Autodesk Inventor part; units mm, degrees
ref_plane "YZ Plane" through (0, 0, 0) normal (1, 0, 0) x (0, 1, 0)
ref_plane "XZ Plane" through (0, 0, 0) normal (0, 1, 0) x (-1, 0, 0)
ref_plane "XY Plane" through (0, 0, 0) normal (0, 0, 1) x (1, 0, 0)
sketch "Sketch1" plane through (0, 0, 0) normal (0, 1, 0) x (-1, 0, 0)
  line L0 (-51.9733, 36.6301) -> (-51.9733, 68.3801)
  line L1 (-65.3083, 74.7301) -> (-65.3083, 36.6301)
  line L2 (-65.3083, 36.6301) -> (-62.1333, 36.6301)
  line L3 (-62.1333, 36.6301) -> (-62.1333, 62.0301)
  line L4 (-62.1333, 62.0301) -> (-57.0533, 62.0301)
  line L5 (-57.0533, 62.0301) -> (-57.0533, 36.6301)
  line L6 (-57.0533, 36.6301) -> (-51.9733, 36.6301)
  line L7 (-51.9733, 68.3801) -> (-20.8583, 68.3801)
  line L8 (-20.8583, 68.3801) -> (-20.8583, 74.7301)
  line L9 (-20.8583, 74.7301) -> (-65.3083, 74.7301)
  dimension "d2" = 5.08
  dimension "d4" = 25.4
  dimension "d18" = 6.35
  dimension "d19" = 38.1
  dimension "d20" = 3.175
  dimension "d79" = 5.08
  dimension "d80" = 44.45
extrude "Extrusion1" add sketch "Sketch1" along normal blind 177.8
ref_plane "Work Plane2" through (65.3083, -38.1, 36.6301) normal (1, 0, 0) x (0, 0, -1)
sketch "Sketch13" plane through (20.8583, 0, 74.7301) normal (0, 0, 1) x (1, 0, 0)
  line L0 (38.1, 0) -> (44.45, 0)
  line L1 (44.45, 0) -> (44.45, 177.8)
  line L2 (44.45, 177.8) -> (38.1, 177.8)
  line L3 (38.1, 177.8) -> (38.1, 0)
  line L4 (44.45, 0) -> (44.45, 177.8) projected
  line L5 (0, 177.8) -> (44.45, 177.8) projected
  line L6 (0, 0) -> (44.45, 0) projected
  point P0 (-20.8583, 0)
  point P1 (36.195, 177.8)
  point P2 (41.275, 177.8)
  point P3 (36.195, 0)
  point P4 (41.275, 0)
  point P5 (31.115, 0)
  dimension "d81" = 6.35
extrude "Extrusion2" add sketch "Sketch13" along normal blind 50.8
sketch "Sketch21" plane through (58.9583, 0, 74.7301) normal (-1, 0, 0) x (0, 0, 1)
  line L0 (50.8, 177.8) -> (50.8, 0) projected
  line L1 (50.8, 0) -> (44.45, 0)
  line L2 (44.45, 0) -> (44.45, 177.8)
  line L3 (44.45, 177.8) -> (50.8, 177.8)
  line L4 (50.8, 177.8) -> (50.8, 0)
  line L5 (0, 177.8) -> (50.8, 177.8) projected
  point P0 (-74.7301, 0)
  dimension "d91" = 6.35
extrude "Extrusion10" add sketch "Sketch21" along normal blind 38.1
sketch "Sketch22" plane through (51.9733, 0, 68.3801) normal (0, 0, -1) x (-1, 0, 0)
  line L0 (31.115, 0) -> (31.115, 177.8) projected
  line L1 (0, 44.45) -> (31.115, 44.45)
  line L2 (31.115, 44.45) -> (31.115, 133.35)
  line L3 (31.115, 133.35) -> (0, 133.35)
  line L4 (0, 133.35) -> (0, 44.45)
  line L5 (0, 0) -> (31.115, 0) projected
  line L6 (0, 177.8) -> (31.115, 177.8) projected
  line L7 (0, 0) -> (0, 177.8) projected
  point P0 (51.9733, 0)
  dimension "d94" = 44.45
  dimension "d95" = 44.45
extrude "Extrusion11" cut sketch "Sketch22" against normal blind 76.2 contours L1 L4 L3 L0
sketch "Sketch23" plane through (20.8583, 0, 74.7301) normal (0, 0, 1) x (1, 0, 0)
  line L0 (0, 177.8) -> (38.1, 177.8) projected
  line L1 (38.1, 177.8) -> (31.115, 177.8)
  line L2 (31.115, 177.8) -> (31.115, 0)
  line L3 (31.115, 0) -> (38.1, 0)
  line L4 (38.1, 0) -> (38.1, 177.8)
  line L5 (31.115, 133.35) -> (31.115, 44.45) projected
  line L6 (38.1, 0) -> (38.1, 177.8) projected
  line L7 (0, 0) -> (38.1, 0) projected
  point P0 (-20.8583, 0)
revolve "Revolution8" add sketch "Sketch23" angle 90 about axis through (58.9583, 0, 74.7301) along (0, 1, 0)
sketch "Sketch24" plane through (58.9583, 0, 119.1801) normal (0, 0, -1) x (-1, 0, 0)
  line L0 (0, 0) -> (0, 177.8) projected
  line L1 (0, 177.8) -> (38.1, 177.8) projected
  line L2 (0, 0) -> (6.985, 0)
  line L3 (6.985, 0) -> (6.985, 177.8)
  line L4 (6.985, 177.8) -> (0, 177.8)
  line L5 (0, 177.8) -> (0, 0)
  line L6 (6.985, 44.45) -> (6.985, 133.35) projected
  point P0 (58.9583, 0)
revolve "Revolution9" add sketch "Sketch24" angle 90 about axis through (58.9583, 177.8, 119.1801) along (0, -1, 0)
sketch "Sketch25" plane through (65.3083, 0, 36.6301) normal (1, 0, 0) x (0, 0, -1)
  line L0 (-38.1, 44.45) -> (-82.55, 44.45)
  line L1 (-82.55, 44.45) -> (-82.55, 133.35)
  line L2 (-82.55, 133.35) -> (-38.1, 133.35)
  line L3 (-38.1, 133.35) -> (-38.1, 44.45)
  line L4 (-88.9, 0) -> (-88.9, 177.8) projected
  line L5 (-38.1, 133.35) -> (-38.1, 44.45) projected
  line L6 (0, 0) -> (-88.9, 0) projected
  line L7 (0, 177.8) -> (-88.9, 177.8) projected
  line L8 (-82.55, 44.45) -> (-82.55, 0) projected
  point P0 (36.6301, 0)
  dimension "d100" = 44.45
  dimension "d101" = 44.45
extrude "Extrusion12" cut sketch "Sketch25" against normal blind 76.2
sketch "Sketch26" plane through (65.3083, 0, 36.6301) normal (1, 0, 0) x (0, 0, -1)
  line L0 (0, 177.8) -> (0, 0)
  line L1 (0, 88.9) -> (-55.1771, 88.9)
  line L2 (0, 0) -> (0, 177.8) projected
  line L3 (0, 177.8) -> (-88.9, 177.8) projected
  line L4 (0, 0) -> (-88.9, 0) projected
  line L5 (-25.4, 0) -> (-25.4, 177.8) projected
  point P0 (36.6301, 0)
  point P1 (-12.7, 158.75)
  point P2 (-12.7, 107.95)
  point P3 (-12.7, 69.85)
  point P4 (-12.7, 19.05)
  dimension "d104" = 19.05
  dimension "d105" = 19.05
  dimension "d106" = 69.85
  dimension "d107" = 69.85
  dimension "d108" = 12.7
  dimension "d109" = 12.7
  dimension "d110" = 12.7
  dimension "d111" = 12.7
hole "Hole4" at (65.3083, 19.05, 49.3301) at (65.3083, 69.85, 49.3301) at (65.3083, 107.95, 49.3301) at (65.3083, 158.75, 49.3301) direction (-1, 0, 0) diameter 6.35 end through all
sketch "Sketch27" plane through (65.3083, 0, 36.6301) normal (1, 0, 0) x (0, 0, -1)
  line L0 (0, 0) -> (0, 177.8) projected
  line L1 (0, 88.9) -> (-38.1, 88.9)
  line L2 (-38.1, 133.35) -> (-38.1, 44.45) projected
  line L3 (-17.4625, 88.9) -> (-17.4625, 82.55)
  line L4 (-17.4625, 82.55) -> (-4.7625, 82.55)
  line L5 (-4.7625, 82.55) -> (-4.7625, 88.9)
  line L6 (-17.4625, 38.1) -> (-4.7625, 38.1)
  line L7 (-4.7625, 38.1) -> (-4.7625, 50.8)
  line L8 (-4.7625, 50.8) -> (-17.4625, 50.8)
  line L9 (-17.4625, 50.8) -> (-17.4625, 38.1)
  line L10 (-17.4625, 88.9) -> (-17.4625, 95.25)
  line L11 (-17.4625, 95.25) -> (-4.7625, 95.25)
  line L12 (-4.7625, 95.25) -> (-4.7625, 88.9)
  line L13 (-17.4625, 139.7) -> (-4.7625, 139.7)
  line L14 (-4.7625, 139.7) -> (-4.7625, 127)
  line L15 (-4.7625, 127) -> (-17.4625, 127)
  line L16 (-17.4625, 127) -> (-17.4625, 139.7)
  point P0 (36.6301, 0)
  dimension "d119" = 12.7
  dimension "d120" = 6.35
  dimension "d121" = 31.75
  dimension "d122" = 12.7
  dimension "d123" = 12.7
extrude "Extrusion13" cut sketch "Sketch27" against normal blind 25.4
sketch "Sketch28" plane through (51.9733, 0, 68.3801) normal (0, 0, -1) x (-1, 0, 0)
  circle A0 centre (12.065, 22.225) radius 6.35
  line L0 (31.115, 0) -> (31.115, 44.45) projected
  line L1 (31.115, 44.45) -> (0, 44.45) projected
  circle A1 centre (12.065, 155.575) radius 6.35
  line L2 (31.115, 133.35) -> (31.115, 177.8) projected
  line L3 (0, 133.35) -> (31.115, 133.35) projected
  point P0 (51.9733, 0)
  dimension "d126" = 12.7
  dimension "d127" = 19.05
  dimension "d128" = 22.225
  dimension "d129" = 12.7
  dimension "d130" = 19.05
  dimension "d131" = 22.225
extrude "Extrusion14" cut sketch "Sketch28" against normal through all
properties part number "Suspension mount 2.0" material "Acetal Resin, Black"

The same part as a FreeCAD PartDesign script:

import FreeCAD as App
import Part
import Sketcher

V = App.Vector
Q = App.Units.Quantity

doc = App.newDocument("Part")
params = doc.addObject("Spreadsheet::Sheet", "Params")
for row, (alias, value) in enumerate([
    ("sketch1_height", "1 in"),
    ("sketch1_width", "0.2 in"),
    ("sketch1_height2", "1.5 in"),
    ("sketch1_width2", "1.75 in"),
    ("sketch1_height3", "0.25 in"),
    ("pad1_length", "7 in"),
    ("sketch2_width", "0.25 in"),
    ("sketch2_height", "7 in"),
    ("pad2_length", "2 in"),
    ("sketch3_height", "0.25 in"),
    ("sketch3_width", "7 in"),
    ("pad3_length", "1.5 in"),
    ("sketch4_height", "3.5 in"),
    ("sketch4_width", "1.225 in"),
    ("pocket1_length", "3 in"),
    ("sketch5_height", "7 in"),
    ("sketch5_width", "0.275 in"),
    ("revolution_angle", "90 deg"),
    ("sketch6_height", "7 in"),
    ("sketch6_width", "0.275 in"),
    ("revolution2_angle", "90 deg"),
    ("sketch7_height", "1.75 in"),
    ("sketch7_width", "3.5 in"),
    ("pocket2_length", "3 in"),
    ("sketch8_diameter", "0.25 in"),
    ("hole_diameter", "0.25 in"),
    ("sketch9_width", "0.5 in"),
    ("pocket3_length", "1 in"),
    ("sketch10_diameter", "0.5 in"),
], start=1):
    params.set(f"A{row}", alias)
    params.set(f"B{row}", "=" + value)
    params.setAlias(f"B{row}", alias)

body = doc.addObject("PartDesign::Body", "Body")

# Sketch on XZ plane
sketch1 = doc.addObject("Sketcher::SketchObject", "Sketch")
body.addObject(sketch1)
sketch1.AttachmentSupport = (doc.XZ_Plane, [""])
sketch1.MapMode = "FlatFace"
sketch1.addGeometry(Part.LineSegment(V(57.0533, 36.6301, 0), V(51.9733, 36.6301, 0)), False)
sketch1.addGeometry(Part.LineSegment(V(51.9733, 36.6301, 0), V(51.9733, 68.3801, 0)), False)
sketch1.addGeometry(Part.LineSegment(V(51.9733, 68.3801, 0), V(20.8583, 68.3801, 0)), False)
sketch1.addGeometry(Part.LineSegment(V(20.8583, 68.3801, 0), V(20.8583, 74.7301, 0)), False)
sketch1.addGeometry(Part.LineSegment(V(20.8583, 74.7301, 0), V(65.3083, 74.7301, 0)), False)
sketch1.addGeometry(Part.LineSegment(V(65.3083, 74.7301, 0), V(65.3083, 36.6301, 0)), False)
sketch1.addGeometry(Part.LineSegment(V(65.3083, 36.6301, 0), V(62.1333, 36.6301, 0)), False)
sketch1.addGeometry(Part.LineSegment(V(62.1333, 36.6301, 0), V(62.1333, 62.0301, 0)), False)
sketch1.addGeometry(Part.LineSegment(V(62.1333, 62.0301, 0), V(57.0533, 62.0301, 0)), False)
sketch1.addGeometry(Part.LineSegment(V(57.0533, 62.0301, 0), V(57.0533, 36.6301, 0)), False)
sketch1.addConstraint(Sketcher.Constraint("Coincident", 0, 2, 1, 1))
sketch1.addConstraint(Sketcher.Constraint("Coincident", 1, 2, 2, 1))
sketch1.addConstraint(Sketcher.Constraint("Coincident", 2, 2, 3, 1))
sketch1.addConstraint(Sketcher.Constraint("Coincident", 3, 2, 4, 1))
sketch1.addConstraint(Sketcher.Constraint("Coincident", 4, 2, 5, 1))
sketch1.addConstraint(Sketcher.Constraint("Coincident", 5, 2, 6, 1))
sketch1.addConstraint(Sketcher.Constraint("Coincident", 6, 2, 7, 1))
sketch1.addConstraint(Sketcher.Constraint("Coincident", 7, 2, 8, 1))
sketch1.addConstraint(Sketcher.Constraint("Coincident", 8, 2, 9, 1))
sketch1.addConstraint(Sketcher.Constraint("Coincident", 9, 2, 0, 1))
sketch1.addConstraint(Sketcher.Constraint("Horizontal", 0))
sketch1.addConstraint(Sketcher.Constraint("Vertical", 1))
sketch1.addConstraint(Sketcher.Constraint("Horizontal", 2))
sketch1.addConstraint(Sketcher.Constraint("Vertical", 3))
sketch1.addConstraint(Sketcher.Constraint("Horizontal", 4))
sketch1.addConstraint(Sketcher.Constraint("Vertical", 5))
sketch1.addConstraint(Sketcher.Constraint("Horizontal", 6))
sketch1.addConstraint(Sketcher.Constraint("Vertical", 7))
sketch1.addConstraint(Sketcher.Constraint("Horizontal", 8))
sketch1.addConstraint(Sketcher.Constraint("Vertical", 9))
sketch1.addConstraint(Sketcher.Constraint("Horizontal", 0, 2, 5, 2))
sketch1.addConstraint(Sketcher.Constraint("Equal", 0, 8))
sketch1.addConstraint(Sketcher.Constraint("DistanceY", 7, 1, 7, 2, Q("1 in")))
sketch1.addConstraint(Sketcher.Constraint("DistanceX", 0, 2, 0, 1, Q("0.2 in")))
sketch1.addConstraint(Sketcher.Constraint("DistanceY", 5, 2, 5, 1, Q("1.5 in")))
sketch1.addConstraint(Sketcher.Constraint("DistanceX", 4, 1, 4, 2, Q("1.75 in")))
sketch1.addConstraint(Sketcher.Constraint("DistanceY", 3, 1, 3, 2, Q("0.25 in")))
sketch1.addConstraint(Sketcher.Constraint("DistanceX", 6, 2, 6, 1, Q("0.125 in")))
sketch1.addConstraint(Sketcher.Constraint("DistanceX", -1, 1, 0, 2, Q("2.0462 in")))
sketch1.addConstraint(Sketcher.Constraint("DistanceY", -1, 1, 0, 2, Q("36.63 mm")))
sketch1.setExpression("Constraints[22]", "Params.sketch1_height")
sketch1.setExpression("Constraints[23]", "Params.sketch1_width")
sketch1.setExpression("Constraints[24]", "Params.sketch1_height2")
sketch1.setExpression("Constraints[25]", "Params.sketch1_width2")
sketch1.setExpression("Constraints[26]", "Params.sketch1_height3")
pad1 = doc.addObject("PartDesign::Pad", "Pad")
body.addObject(pad1)
pad1.Profile = sketch1
pad1.setExpression("Length", "Params.pad1_length")
pad1.Reversed = True

# Sketch on XY plane
sketch2 = doc.addObject("Sketcher::SketchObject", "Sketch001")
body.addObject(sketch2)
sketch2.AttachmentSupport = (doc.XY_Plane, [""])
sketch2.MapMode = "FlatFace"
sketch2.AttachmentOffset = App.Placement(V(0, 0, 74.7301), App.Rotation())
sketch2.addGeometry(Part.LineSegment(V(58.9583, 177.8, 0), V(58.9583, 0, 0)), False)
sketch2.addGeometry(Part.LineSegment(V(58.9583, 0, 0), V(65.3083, 0, 0)), False)
sketch2.addGeometry(Part.LineSegment(V(65.3083, 0, 0), V(65.3083, 177.8, 0)), False)
sketch2.addGeometry(Part.LineSegment(V(65.3083, 177.8, 0), V(58.9583, 177.8, 0)), False)
sketch2.addConstraint(Sketcher.Constraint("Coincident", 0, 2, 1, 1))
sketch2.addConstraint(Sketcher.Constraint("Coincident", 1, 2, 2, 1))
sketch2.addConstraint(Sketcher.Constraint("Coincident", 2, 2, 3, 1))
sketch2.addConstraint(Sketcher.Constraint("Coincident", 3, 2, 0, 1))
sketch2.addConstraint(Sketcher.Constraint("Vertical", 0))
sketch2.addConstraint(Sketcher.Constraint("Horizontal", 1))
sketch2.addConstraint(Sketcher.Constraint("Vertical", 2))
sketch2.addConstraint(Sketcher.Constraint("Horizontal", 3))
sketch2.addConstraint(Sketcher.Constraint("PointOnObject", 0, 2, -1))
sketch2.addConstraint(Sketcher.Constraint("DistanceX", 1, 1, 1, 2, Q("0.25 in")))
sketch2.addConstraint(Sketcher.Constraint("DistanceY", 0, 2, 0, 1, Q("7 in")))
sketch2.addConstraint(Sketcher.Constraint("DistanceX", -1, 1, 0, 2, Q("2.3212 in")))
sketch2.setExpression("Constraints[9]", "Params.sketch2_width")
sketch2.setExpression("Constraints[10]", "Params.sketch2_height")
pad2 = doc.addObject("PartDesign::Pad", "Pad001")
body.addObject(pad2)
pad2.Profile = sketch2
pad2.setExpression("Length", "Params.pad2_length")

# Sketch on YZ plane
sketch3 = doc.addObject("Sketcher::SketchObject", "Sketch002")
body.addObject(sketch3)
sketch3.AttachmentSupport = (doc.YZ_Plane, [""])
sketch3.MapMode = "FlatFace"
sketch3.AttachmentOffset = App.Placement(V(0, 0, 2.3211929 * 25.4), App.Rotation())
sketch3.addGeometry(Part.LineSegment(V(0, 125.5301, 0), V(177.8, 125.5301, 0)), False)
sketch3.addGeometry(Part.LineSegment(V(177.8, 125.5301, 0), V(177.8, 119.1801, 0)), False)
sketch3.addGeometry(Part.LineSegment(V(177.8, 119.1801, 0), V(0, 119.1801, 0)), False)
sketch3.addGeometry(Part.LineSegment(V(0, 119.1801, 0), V(0, 125.5301, 0)), False)
sketch3.addConstraint(Sketcher.Constraint("Coincident", 0, 2, 1, 1))
sketch3.addConstraint(Sketcher.Constraint("Coincident", 1, 2, 2, 1))
sketch3.addConstraint(Sketcher.Constraint("Coincident", 2, 2, 3, 1))
sketch3.addConstraint(Sketcher.Constraint("Coincident", 3, 2, 0, 1))
sketch3.addConstraint(Sketcher.Constraint("Horizontal", 0))
sketch3.addConstraint(Sketcher.Constraint("Vertical", 1))
sketch3.addConstraint(Sketcher.Constraint("Horizontal", 2))
sketch3.addConstraint(Sketcher.Constraint("Vertical", 3))
sketch3.addConstraint(Sketcher.Constraint("PointOnObject", 2, 2, -2))
sketch3.addConstraint(Sketcher.Constraint("DistanceY", 1, 2, 1, 1, Q("0.25 in")))
sketch3.addConstraint(Sketcher.Constraint("DistanceX", 0, 1, 0, 2, Q("7 in")))
sketch3.addConstraint(Sketcher.Constraint("DistanceY", -1, 1, 0, 2, Q("125.53 mm")))
sketch3.setExpression("Constraints[9]", "Params.sketch3_height")
sketch3.setExpression("Constraints[10]", "Params.sketch3_width")
pad3 = doc.addObject("PartDesign::Pad", "Pad002")
body.addObject(pad3)
pad3.Profile = sketch3
pad3.setExpression("Length", "Params.pad3_length")
pad3.Reversed = True

# Sketch on XY plane
sketch4 = doc.addObject("Sketcher::SketchObject", "Sketch003")
body.addObject(sketch4)
sketch4.AttachmentSupport = (doc.XY_Plane, [""])
sketch4.MapMode = "FlatFace"
sketch4.AttachmentOffset = App.Placement(V(0, 0, 68.3801), App.Rotation())
sketch4.addGeometry(Part.LineSegment(V(51.9733, 44.45, 0), V(20.8583, 44.45, 0)), False)
sketch4.addGeometry(Part.LineSegment(V(20.8583, 44.45, 0), V(20.8583, 133.35, 0)), False)
sketch4.addGeometry(Part.LineSegment(V(20.8583, 133.35, 0), V(51.9733, 133.35, 0)), False)
sketch4.addGeometry(Part.LineSegment(V(51.9733, 133.35, 0), V(51.9733, 44.45, 0)), False)
sketch4.addConstraint(Sketcher.Constraint("Coincident", 0, 2, 1, 1))
sketch4.addConstraint(Sketcher.Constraint("Coincident", 1, 2, 2, 1))
sketch4.addConstraint(Sketcher.Constraint("Coincident", 2, 2, 3, 1))
sketch4.addConstraint(Sketcher.Constraint("Coincident", 3, 2, 0, 1))
sketch4.addConstraint(Sketcher.Constraint("Horizontal", 0))
sketch4.addConstraint(Sketcher.Constraint("Vertical", 1))
sketch4.addConstraint(Sketcher.Constraint("Horizontal", 2))
sketch4.addConstraint(Sketcher.Constraint("Vertical", 3))
sketch4.addConstraint(Sketcher.Constraint("DistanceY", -1, 1, 0, 2, Q("1.75 in")))
sketch4.addConstraint(Sketcher.Constraint("DistanceY", 1, 1, 1, 2, Q("3.5 in")))
sketch4.addConstraint(Sketcher.Constraint("DistanceX", 0, 2, 0, 1, Q("1.225 in")))
sketch4.addConstraint(Sketcher.Constraint("DistanceX", -1, 1, 0, 2, Q("0.8212 in")))
sketch4.setExpression("Constraints[9]", "Params.sketch4_height")
sketch4.setExpression("Constraints[10]", "Params.sketch4_width")
pocket1 = doc.addObject("PartDesign::Pocket", "Pocket")
body.addObject(pocket1)
pocket1.Profile = sketch4
pocket1.setExpression("Length", "Params.pocket1_length")
pocket1.Reversed = True

# Sketch on XY plane
sketch5 = doc.addObject("Sketcher::SketchObject", "Sketch004")
body.addObject(sketch5)
sketch5.AttachmentSupport = (doc.XY_Plane, [""])
sketch5.MapMode = "FlatFace"
sketch5.AttachmentOffset = App.Placement(V(0, 0, 74.7301), App.Rotation())
sketch5.addGeometry(Part.LineSegment(V(58.9583, 177.8, 0), V(51.9733, 177.8, 0)), False)
sketch5.addGeometry(Part.LineSegment(V(51.9733, 177.8, 0), V(51.9733, 0, 0)), False)
sketch5.addGeometry(Part.LineSegment(V(51.9733, 0, 0), V(58.9583, 0, 0)), False)
sketch5.addGeometry(Part.LineSegment(V(58.9583, 0, 0), V(58.9583, 177.8, 0)), False)
sketch5.addGeometry(Part.LineSegment(V(58.9583, 0, 0), V(58.9583, 177.8, 0)), True)  # axis
sketch5.addConstraint(Sketcher.Constraint("Coincident", 0, 2, 1, 1))
sketch5.addConstraint(Sketcher.Constraint("Coincident", 1, 2, 2, 1))
sketch5.addConstraint(Sketcher.Constraint("Coincident", 2, 2, 3, 1))
sketch5.addConstraint(Sketcher.Constraint("Coincident", 3, 2, 0, 1))
sketch5.addConstraint(Sketcher.Constraint("Horizontal", 0))
sketch5.addConstraint(Sketcher.Constraint("Vertical", 1))
sketch5.addConstraint(Sketcher.Constraint("Horizontal", 2))
sketch5.addConstraint(Sketcher.Constraint("Vertical", 3))
sketch5.addConstraint(Sketcher.Constraint("Vertical", 4))
sketch5.addConstraint(Sketcher.Constraint("Coincident", 4, 1, 2, 2))
sketch5.addConstraint(Sketcher.Constraint("PointOnObject", 1, 2, -1))
sketch5.addConstraint(Sketcher.Constraint("Horizontal", 0, 2, 4, 2))
sketch5.addConstraint(Sketcher.Constraint("DistanceY", 1, 2, 1, 1, Q("7 in")))
sketch5.addConstraint(Sketcher.Constraint("DistanceX", 0, 2, 0, 1, Q("0.275 in")))
sketch5.addConstraint(Sketcher.Constraint("DistanceX", -1, 1, 0, 2, Q("2.0462 in")))
sketch5.setExpression("Constraints[12]", "Params.sketch5_height")
sketch5.setExpression("Constraints[13]", "Params.sketch5_width")
revolution = doc.addObject("PartDesign::Revolution", "Revolution")
body.addObject(revolution)
revolution.Profile = sketch5
revolution.ReferenceAxis = (sketch5, ["Axis0"])
revolution.setExpression("Angle", "Params.revolution_angle")

# Sketch on XY plane
sketch6 = doc.addObject("Sketcher::SketchObject", "Sketch005")
body.addObject(sketch6)
sketch6.AttachmentSupport = (doc.XY_Plane, [""])
sketch6.MapMode = "FlatFace"
sketch6.AttachmentOffset = App.Placement(V(0, 0, 119.1801), App.Rotation())
sketch6.addGeometry(Part.LineSegment(V(58.9583, 177.8, 0), V(58.9583, 0, 0)), False)
sketch6.addGeometry(Part.LineSegment(V(58.9583, 0, 0), V(51.9733, 0, 0)), False)
sketch6.addGeometry(Part.LineSegment(V(51.9733, 0, 0), V(51.9733, 177.8, 0)), False)
sketch6.addGeometry(Part.LineSegment(V(51.9733, 177.8, 0), V(58.9583, 177.8, 0)), False)
sketch6.addGeometry(Part.LineSegment(V(58.9583, 177.8, 0), V(58.9583, 0, 0)), True)  # axis
sketch6.addConstraint(Sketcher.Constraint("Coincident", 0, 2, 1, 1))
sketch6.addConstraint(Sketcher.Constraint("Coincident", 1, 2, 2, 1))
sketch6.addConstraint(Sketcher.Constraint("Coincident", 2, 2, 3, 1))
sketch6.addConstraint(Sketcher.Constraint("Coincident", 3, 2, 0, 1))
sketch6.addConstraint(Sketcher.Constraint("Vertical", 0))
sketch6.addConstraint(Sketcher.Constraint("Horizontal", 1))
sketch6.addConstraint(Sketcher.Constraint("Vertical", 2))
sketch6.addConstraint(Sketcher.Constraint("Horizontal", 3))
sketch6.addConstraint(Sketcher.Constraint("Vertical", 4))
sketch6.addConstraint(Sketcher.Constraint("Coincident", 4, 1, 3, 2))
sketch6.addConstraint(Sketcher.Constraint("PointOnObject", 0, 2, -1))
sketch6.addConstraint(Sketcher.Constraint("PointOnObject", 4, 2, -1))
sketch6.addConstraint(Sketcher.Constraint("DistanceY", 0, 2, 0, 1, Q("7 in")))
sketch6.addConstraint(Sketcher.Constraint("DistanceX", 1, 2, 1, 1, Q("0.275 in")))
sketch6.addConstraint(Sketcher.Constraint("DistanceX", -1, 1, 0, 2, Q("2.3212 in")))
sketch6.setExpression("Constraints[12]", "Params.sketch6_height")
sketch6.setExpression("Constraints[13]", "Params.sketch6_width")
revolution2 = doc.addObject("PartDesign::Revolution", "Revolution001")
body.addObject(revolution2)
revolution2.Profile = sketch6
revolution2.ReferenceAxis = (sketch6, ["Axis0"])
revolution2.setExpression("Angle", "Params.revolution2_angle")

# Sketch on YZ plane
sketch7 = doc.addObject("Sketcher::SketchObject", "Sketch006")
body.addObject(sketch7)
sketch7.AttachmentSupport = (doc.YZ_Plane, [""])
sketch7.MapMode = "FlatFace"
sketch7.AttachmentOffset = App.Placement(V(0, 0, 2.5711929 * 25.4), App.Rotation())
sketch7.addGeometry(Part.LineSegment(V(44.45, 119.1801, 0), V(44.45, 74.7301, 0)), False)
sketch7.addGeometry(Part.LineSegment(V(44.45, 74.7301, 0), V(133.35, 74.7301, 0)), False)
sketch7.addGeometry(Part.LineSegment(V(133.35, 74.7301, 0), V(133.35, 119.1801, 0)), False)
sketch7.addGeometry(Part.LineSegment(V(133.35, 119.1801, 0), V(44.45, 119.1801, 0)), False)
sketch7.addConstraint(Sketcher.Constraint("Coincident", 0, 2, 1, 1))
sketch7.addConstraint(Sketcher.Constraint("Coincident", 1, 2, 2, 1))
sketch7.addConstraint(Sketcher.Constraint("Coincident", 2, 2, 3, 1))
sketch7.addConstraint(Sketcher.Constraint("Coincident", 3, 2, 0, 1))
sketch7.addConstraint(Sketcher.Constraint("Vertical", 0))
sketch7.addConstraint(Sketcher.Constraint("Horizontal", 1))
sketch7.addConstraint(Sketcher.Constraint("Vertical", 2))
sketch7.addConstraint(Sketcher.Constraint("Horizontal", 3))
sketch7.addConstraint(Sketcher.Constraint("DistanceY", 0, 2, 0, 1, Q("1.75 in")))
sketch7.addConstraint(Sketcher.Constraint("DistanceX", -1, 1, 0, 2, Q("1.75 in")))
sketch7.addConstraint(Sketcher.Constraint("DistanceX", 1, 1, 1, 2, Q("3.5 in")))
sketch7.addConstraint(Sketcher.Constraint("DistanceY", -1, 1, 0, 2, Q("74.73 mm")))
sketch7.setExpression("Constraints[8]", "Params.sketch7_height")
sketch7.setExpression("Constraints[10]", "Params.sketch7_width")
pocket2 = doc.addObject("PartDesign::Pocket", "Pocket001")
body.addObject(pocket2)
pocket2.Profile = sketch7
pocket2.setExpression("Length", "Params.pocket2_length")

# Sketch on YZ plane
sketch8 = doc.addObject("Sketcher::SketchObject", "Sketch007")
body.addObject(sketch8)
sketch8.AttachmentSupport = (doc.YZ_Plane, [""])
sketch8.MapMode = "FlatFace"
sketch8.AttachmentOffset = App.Placement(V(0, 0, 2.5711929 * 25.4), App.Rotation())
sketch8.addGeometry(Part.Circle(V(19.05, 49.3301, 0), V(0, 0, 1), 3.175), False)
sketch8.addGeometry(Part.Circle(V(69.85, 49.3301, 0), V(0, 0, 1), 3.175), False)
sketch8.addGeometry(Part.Circle(V(107.95, 49.3301, 0), V(0, 0, 1), 3.175), False)
sketch8.addGeometry(Part.Circle(V(158.75, 49.3301, 0), V(0, 0, 1), 3.175), False)
sketch8.addConstraint(Sketcher.Constraint("Equal", 0, 1))
sketch8.addConstraint(Sketcher.Constraint("Equal", 1, 2))
sketch8.addConstraint(Sketcher.Constraint("Equal", 2, 3))
sketch8.addConstraint(Sketcher.Constraint("Horizontal", 0, 3, 1, 3))
sketch8.addConstraint(Sketcher.Constraint("Horizontal", 1, 3, 2, 3))
sketch8.addConstraint(Sketcher.Constraint("Horizontal", 2, 3, 3, 3))
sketch8.addConstraint(Sketcher.Constraint("Diameter", 0, Q("0.25 in")))
sketch8.addConstraint(Sketcher.Constraint("DistanceX", 0, 3, 1, 3, Q("2 in")))
sketch8.addConstraint(Sketcher.Constraint("DistanceX", 2, 3, 3, 3, Q("2 in")))
sketch8.addConstraint(Sketcher.Constraint("DistanceX", 1, 3, 2, 3, Q("1.5 in")))
sketch8.addConstraint(Sketcher.Constraint("DistanceX", -1, 1, 0, 3, Q("0.75 in")))
sketch8.addConstraint(Sketcher.Constraint("DistanceY", -1, 1, 0, 3, Q("49.33 mm")))
sketch8.setExpression("Constraints[6]", "Params.sketch8_diameter")
doc.recompute()
hole = doc.addObject("PartDesign::Hole", "Hole")
body.addObject(hole)
hole.Profile = sketch8
hole.ThreadType = "None"
hole.setExpression("Diameter", "Params.hole_diameter")
hole.DepthType = "ThroughAll"

# Sketch on YZ plane
sketch9 = doc.addObject("Sketcher::SketchObject", "Sketch008")
body.addObject(sketch9)
sketch9.AttachmentSupport = (doc.YZ_Plane, [""])
sketch9.MapMode = "FlatFace"
sketch9.AttachmentOffset = App.Placement(V(0, 0, 2.5711929 * 25.4), App.Rotation())
sketch9.addGeometry(Part.LineSegment(V(82.55, 41.3926, 0), V(95.25, 41.3926, 0)), False)
sketch9.addGeometry(Part.LineSegment(V(95.25, 41.3926, 0), V(95.25, 54.0926, 0)), False)
sketch9.addGeometry(Part.LineSegment(V(95.25, 54.0926, 0), V(82.55, 54.0926, 0)), False)
sketch9.addGeometry(Part.LineSegment(V(82.55, 54.0926, 0), V(82.55, 41.3926, 0)), False)
sketch9.addGeometry(Part.LineSegment(V(50.8, 54.0926, 0), V(38.1, 54.0926, 0)), False)
sketch9.addGeometry(Part.LineSegment(V(38.1, 54.0926, 0), V(38.1, 41.3926, 0)), False)
sketch9.addGeometry(Part.LineSegment(V(38.1, 41.3926, 0), V(50.8, 41.3926, 0)), False)
sketch9.addGeometry(Part.LineSegment(V(50.8, 41.3926, 0), V(50.8, 54.0926, 0)), False)
sketch9.addGeometry(Part.LineSegment(V(139.7, 41.3926, 0), V(139.7, 54.0926, 0)), False)
sketch9.addGeometry(Part.LineSegment(V(139.7, 54.0926, 0), V(127, 54.0926, 0)), False)
sketch9.addGeometry(Part.LineSegment(V(127, 54.0926, 0), V(127, 41.3926, 0)), False)
sketch9.addGeometry(Part.LineSegment(V(127, 41.3926, 0), V(139.7, 41.3926, 0)), False)
sketch9.addConstraint(Sketcher.Constraint("Coincident", 0, 2, 1, 1))
sketch9.addConstraint(Sketcher.Constraint("Coincident", 1, 2, 2, 1))
sketch9.addConstraint(Sketcher.Constraint("Coincident", 2, 2, 3, 1))
sketch9.addConstraint(Sketcher.Constraint("Coincident", 3, 2, 0, 1))
sketch9.addConstraint(Sketcher.Constraint("Coincident", 4, 2, 5, 1))
sketch9.addConstraint(Sketcher.Constraint("Coincident", 5, 2, 6, 1))
sketch9.addConstraint(Sketcher.Constraint("Coincident", 6, 2, 7, 1))
sketch9.addConstraint(Sketcher.Constraint("Coincident", 7, 2, 4, 1))
sketch9.addConstraint(Sketcher.Constraint("Coincident", 8, 2, 9, 1))
sketch9.addConstraint(Sketcher.Constraint("Coincident", 9, 2, 10, 1))
sketch9.addConstraint(Sketcher.Constraint("Coincident", 10, 2, 11, 1))
sketch9.addConstraint(Sketcher.Constraint("Coincident", 11, 2, 8, 1))
sketch9.addConstraint(Sketcher.Constraint("Horizontal", 0))
sketch9.addConstraint(Sketcher.Constraint("Vertical", 1))
sketch9.addConstraint(Sketcher.Constraint("Horizontal", 2))
sketch9.addConstraint(Sketcher.Constraint("Vertical", 3))
sketch9.addConstraint(Sketcher.Constraint("Horizontal", 4))
sketch9.addConstraint(Sketcher.Constraint("Vertical", 5))
sketch9.addConstraint(Sketcher.Constraint("Horizontal", 6))
sketch9.addConstraint(Sketcher.Constraint("Vertical", 7))
sketch9.addConstraint(Sketcher.Constraint("Vertical", 8))
sketch9.addConstraint(Sketcher.Constraint("Horizontal", 9))
sketch9.addConstraint(Sketcher.Constraint("Vertical", 10))
sketch9.addConstraint(Sketcher.Constraint("Horizontal", 11))
sketch9.addConstraint(Sketcher.Constraint("Horizontal", 2, 2, 4, 2))
sketch9.addConstraint(Sketcher.Constraint("Horizontal", 3, 2, 5, 2))
sketch9.addConstraint(Sketcher.Constraint("Horizontal", 7, 2, 8, 2))
sketch9.addConstraint(Sketcher.Constraint("Horizontal", 6, 2, 10, 2))
sketch9.addConstraint(Sketcher.Constraint("Equal", 2, 4))
sketch9.addConstraint(Sketcher.Constraint("Equal", 6, 9))
sketch9.addConstraint(Sketcher.Constraint("Equal", 11, 1))
sketch9.addConstraint(Sketcher.Constraint("DistanceX", 0, 1, 0, 2, Q("0.5 in")))
sketch9.addConstraint(Sketcher.Constraint("DistanceX", 6, 2, 3, 2, Q("1.25 in")))
sketch9.addConstraint(Sketcher.Constraint("DistanceX", 1, 2, 9, 2, Q("1.25 in")))
sketch9.addConstraint(Sketcher.Constraint("DistanceX", -1, 1, 6, 2, Q("2 in")))
sketch9.addConstraint(Sketcher.Constraint("DistanceY", -1, 1, 0, 2, Q("41.3926 mm")))
sketch9.setExpression("Constraints[31]", "Params.sketch9_width")
pocket3 = doc.addObject("PartDesign::Pocket", "Pocket002")
body.addObject(pocket3)
pocket3.Profile = sketch9
pocket3.setExpression("Length", "Params.pocket3_length")

# Sketch on XY plane
sketch10 = doc.addObject("Sketcher::SketchObject", "Sketch009")
body.addObject(sketch10)
sketch10.AttachmentSupport = (doc.XY_Plane, [""])
sketch10.MapMode = "FlatFace"
sketch10.AttachmentOffset = App.Placement(V(0, 0, 68.3801), App.Rotation())
sketch10.addGeometry(Part.Circle(V(39.9083, 22.225, 0), V(0, 0, 1), 6.35), False)
sketch10.addGeometry(Part.Circle(V(39.9083, 155.575, 0), V(0, 0, 1), 6.35), False)
sketch10.addConstraint(Sketcher.Constraint("Equal", 0, 1))
sketch10.addConstraint(Sketcher.Constraint("Vertical", 0, 3, 1, 3))
sketch10.addConstraint(Sketcher.Constraint("Diameter", 0, Q("0.5 in")))
sketch10.addConstraint(Sketcher.Constraint("DistanceY", -1, 1, 0, 3, Q("0.875 in")))
sketch10.addConstraint(Sketcher.Constraint("DistanceY", 0, 3, 1, 3, Q("5.25 in")))
sketch10.addConstraint(Sketcher.Constraint("DistanceX", -1, 1, 0, 3, Q("1.5712 in")))
sketch10.setExpression("Constraints[2]", "Params.sketch10_diameter")
pocket4 = doc.addObject("PartDesign::Pocket", "Pocket003")
body.addObject(pocket4)
pocket4.Profile = sketch10
pocket4.Type = "ThroughAll"
pocket4.Reversed = True

doc.recompute()
